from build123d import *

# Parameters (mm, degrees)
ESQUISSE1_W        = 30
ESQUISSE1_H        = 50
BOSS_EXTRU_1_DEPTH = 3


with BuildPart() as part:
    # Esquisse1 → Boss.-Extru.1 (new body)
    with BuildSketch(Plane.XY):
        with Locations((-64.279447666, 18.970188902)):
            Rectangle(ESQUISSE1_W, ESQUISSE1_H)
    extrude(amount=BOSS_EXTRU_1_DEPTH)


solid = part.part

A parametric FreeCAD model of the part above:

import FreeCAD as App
import Part
import Sketcher
from FreeCAD import Vector

doc = App.newDocument("Part")
params = doc.addObject("Spreadsheet::Sheet", "Params")
for row, (alias, value) in enumerate([
    ("sketch1_width", "30 mm"),
    ("sketch1_height", "50 mm"),
    ("pad1_length", "3 mm"),
], start=1):
    params.set(f"A{row}", alias)
    params.set(f"B{row}", "=" + value)
    params.setAlias(f"B{row}", alias)

body = doc.addObject("PartDesign::Body", "Body")

# Sketch on XY plane
sketch1 = doc.addObject("Sketcher::SketchObject", "Sketch")
body.addObject(sketch1)
sketch1.AttachmentSupport = (doc.XY_Plane, [""])
sketch1.MapMode = "FlatFace"
sketch1.addGeometry([
    Part.LineSegment(Vector(-79, 44, 0), Vector(-79, -6, 0)),
    Part.LineSegment(Vector(-79, -6, 0), Vector(-49, -6, 0)),
    Part.LineSegment(Vector(-49, -6, 0), Vector(-49, 44, 0)),
    Part.LineSegment(Vector(-49, 44, 0), Vector(-79, 44, 0)),
], False)
sketch1.addConstraint([
    Sketcher.Constraint("Coincident", 0, 2, 1, 1),
    Sketcher.Constraint("Coincident", 1, 2, 2, 1),
    Sketcher.Constraint("Coincident", 2, 2, 3, 1),
    Sketcher.Constraint("Coincident", 3, 2, 0, 1),
    Sketcher.Constraint("Vertical", 0),
    Sketcher.Constraint("Horizontal", 1),
    Sketcher.Constraint("Vertical", 2),
    Sketcher.Constraint("Horizontal", 3),
    Sketcher.Constraint("DistanceX", 1, 1, 1, 2, 30.0),
    Sketcher.Constraint("DistanceY", 0, 2, 0, 1, 50.0),
    Sketcher.Constraint("DistanceY", 0, 2, -1, 1, 6.029811),
    Sketcher.Constraint("DistanceX", 0, 2, -1, 1, 79.279448),
])
sketch1.setExpression("Constraints[8]", "Params.sketch1_width")
sketch1.setExpression("Constraints[9]", "Params.sketch1_height")
pad1 = doc.addObject("PartDesign::Pad", "Pad")
body.addObject(pad1)
pad1.Profile = sketch1
pad1.setExpression("Length", "Params.pad1_length")

doc.recompute()
